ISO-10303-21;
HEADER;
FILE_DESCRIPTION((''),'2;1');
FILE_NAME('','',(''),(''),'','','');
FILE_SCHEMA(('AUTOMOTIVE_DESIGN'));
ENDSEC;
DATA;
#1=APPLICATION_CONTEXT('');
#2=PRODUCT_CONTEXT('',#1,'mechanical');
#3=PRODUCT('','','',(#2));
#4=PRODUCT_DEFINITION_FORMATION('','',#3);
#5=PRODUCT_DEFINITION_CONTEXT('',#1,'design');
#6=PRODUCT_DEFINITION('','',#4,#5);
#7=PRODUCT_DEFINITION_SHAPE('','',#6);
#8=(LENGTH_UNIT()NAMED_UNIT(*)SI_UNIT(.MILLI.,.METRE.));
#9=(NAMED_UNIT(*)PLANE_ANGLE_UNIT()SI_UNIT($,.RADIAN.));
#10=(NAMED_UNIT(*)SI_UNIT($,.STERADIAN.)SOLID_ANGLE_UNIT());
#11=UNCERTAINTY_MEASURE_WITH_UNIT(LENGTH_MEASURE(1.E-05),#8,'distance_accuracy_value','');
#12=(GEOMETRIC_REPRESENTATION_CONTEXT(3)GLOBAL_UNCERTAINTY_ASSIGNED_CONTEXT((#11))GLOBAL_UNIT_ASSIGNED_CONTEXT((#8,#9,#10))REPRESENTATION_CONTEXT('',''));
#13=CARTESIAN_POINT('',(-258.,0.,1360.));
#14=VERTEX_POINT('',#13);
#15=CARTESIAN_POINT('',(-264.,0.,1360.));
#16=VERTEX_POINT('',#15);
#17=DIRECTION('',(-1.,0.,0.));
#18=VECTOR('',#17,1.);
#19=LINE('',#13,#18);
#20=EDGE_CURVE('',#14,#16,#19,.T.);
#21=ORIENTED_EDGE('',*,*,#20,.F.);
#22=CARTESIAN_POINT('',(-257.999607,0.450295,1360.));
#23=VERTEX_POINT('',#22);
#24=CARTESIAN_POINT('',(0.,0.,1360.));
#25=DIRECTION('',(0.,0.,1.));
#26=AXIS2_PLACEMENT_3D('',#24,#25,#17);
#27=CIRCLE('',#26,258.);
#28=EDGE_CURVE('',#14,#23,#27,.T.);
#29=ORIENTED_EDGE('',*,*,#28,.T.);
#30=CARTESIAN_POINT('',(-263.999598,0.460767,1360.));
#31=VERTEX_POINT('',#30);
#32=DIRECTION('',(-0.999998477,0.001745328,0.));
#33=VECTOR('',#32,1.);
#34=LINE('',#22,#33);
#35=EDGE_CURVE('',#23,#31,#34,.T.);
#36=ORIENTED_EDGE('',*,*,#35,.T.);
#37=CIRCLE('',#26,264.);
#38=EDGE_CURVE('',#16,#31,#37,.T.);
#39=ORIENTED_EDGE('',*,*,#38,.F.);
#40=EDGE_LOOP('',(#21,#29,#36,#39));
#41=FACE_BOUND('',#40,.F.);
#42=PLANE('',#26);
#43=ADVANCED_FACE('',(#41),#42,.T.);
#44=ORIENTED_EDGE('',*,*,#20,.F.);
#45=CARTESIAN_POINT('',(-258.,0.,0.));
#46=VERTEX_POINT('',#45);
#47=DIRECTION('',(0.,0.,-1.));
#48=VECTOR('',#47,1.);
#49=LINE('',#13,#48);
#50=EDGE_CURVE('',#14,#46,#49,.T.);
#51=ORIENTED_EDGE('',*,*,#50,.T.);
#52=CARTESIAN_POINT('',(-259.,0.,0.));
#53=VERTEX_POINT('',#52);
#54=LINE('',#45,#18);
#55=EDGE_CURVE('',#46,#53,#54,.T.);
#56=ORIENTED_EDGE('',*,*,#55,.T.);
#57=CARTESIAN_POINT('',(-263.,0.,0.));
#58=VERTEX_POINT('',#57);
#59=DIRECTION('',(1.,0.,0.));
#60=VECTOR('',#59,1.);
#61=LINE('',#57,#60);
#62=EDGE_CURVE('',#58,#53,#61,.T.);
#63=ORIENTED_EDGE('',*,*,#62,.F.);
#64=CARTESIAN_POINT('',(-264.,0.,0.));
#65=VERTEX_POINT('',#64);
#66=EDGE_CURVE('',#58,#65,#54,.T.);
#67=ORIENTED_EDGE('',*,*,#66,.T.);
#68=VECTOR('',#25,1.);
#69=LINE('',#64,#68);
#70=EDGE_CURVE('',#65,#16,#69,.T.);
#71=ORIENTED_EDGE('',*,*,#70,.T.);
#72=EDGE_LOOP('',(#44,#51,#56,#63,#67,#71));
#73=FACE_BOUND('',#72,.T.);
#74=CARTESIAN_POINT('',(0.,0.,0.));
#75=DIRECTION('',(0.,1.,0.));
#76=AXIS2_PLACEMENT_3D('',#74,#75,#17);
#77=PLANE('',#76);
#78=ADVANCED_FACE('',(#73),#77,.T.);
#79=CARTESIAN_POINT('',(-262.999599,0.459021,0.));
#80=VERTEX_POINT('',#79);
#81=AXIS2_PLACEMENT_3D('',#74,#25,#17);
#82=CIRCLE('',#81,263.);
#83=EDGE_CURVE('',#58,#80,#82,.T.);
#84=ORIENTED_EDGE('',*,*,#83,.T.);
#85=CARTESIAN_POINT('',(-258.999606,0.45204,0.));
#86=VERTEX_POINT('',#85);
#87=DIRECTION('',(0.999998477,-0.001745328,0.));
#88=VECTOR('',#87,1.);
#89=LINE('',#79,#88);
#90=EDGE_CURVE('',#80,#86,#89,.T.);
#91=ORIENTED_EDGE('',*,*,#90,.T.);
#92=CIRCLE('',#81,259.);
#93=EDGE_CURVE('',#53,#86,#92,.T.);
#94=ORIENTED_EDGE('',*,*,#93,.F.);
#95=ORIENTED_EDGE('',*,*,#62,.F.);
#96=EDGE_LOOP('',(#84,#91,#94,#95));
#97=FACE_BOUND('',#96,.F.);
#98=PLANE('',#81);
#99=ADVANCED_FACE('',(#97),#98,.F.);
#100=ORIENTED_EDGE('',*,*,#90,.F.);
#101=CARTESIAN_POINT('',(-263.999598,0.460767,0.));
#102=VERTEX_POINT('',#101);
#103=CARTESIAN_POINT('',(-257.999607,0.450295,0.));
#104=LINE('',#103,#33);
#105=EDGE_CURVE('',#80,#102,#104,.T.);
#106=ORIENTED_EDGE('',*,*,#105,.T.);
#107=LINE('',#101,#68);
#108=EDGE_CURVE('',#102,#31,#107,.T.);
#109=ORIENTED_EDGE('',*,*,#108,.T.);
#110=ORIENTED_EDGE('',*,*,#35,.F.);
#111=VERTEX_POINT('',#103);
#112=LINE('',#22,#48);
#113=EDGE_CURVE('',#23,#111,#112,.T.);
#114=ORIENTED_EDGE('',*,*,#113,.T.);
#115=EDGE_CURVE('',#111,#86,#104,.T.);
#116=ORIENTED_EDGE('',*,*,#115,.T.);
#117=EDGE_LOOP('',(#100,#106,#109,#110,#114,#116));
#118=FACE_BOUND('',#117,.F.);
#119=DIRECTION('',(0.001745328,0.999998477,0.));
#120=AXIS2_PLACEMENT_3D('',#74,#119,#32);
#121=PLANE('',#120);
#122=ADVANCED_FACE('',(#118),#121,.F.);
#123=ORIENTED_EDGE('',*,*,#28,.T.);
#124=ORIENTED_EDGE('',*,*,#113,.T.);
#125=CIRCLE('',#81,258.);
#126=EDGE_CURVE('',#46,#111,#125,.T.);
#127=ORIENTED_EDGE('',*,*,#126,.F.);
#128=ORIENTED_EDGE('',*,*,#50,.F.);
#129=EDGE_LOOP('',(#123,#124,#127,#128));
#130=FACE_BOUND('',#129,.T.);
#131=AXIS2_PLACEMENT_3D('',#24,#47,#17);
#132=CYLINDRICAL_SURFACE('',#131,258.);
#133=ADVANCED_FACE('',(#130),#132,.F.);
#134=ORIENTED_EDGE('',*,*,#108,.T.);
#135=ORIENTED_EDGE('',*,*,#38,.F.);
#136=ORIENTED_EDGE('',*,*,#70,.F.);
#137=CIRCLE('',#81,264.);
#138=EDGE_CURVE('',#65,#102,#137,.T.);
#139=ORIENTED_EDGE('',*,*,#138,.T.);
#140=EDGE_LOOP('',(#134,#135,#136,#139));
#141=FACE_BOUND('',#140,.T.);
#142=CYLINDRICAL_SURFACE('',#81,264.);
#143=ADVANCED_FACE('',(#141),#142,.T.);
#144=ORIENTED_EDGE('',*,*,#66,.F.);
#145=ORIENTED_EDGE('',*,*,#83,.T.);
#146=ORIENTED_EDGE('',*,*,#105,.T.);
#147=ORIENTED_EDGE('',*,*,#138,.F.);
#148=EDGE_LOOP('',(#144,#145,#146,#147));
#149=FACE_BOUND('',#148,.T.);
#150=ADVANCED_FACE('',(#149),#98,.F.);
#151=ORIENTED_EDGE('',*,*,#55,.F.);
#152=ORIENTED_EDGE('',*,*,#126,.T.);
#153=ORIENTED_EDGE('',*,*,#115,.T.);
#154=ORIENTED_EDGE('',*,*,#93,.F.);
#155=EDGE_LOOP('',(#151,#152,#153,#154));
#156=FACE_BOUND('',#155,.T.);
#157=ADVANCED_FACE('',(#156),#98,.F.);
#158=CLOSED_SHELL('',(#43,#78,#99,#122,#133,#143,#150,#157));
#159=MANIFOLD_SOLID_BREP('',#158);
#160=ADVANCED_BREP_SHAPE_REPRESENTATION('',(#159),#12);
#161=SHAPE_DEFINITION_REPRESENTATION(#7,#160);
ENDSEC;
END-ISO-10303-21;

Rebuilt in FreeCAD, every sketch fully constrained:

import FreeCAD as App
import Part
import Sketcher
from FreeCAD import Vector

doc = App.newDocument("Part")
body = doc.addObject("PartDesign::Body", "Body")

# Sketch on XZ plane
sketch1 = body.newObject("Sketcher::SketchObject", "Sketch")
sketch1.AttachmentSupport = (doc.getObject("XZ_Plane"), [""])
sketch1.MapMode = "FlatFace"
sketch1.addGeometry([
    Part.LineSegment(Vector(-264, 1360, 0), Vector(-258, 1360, 0)),
    Part.LineSegment(Vector(-258, 1360, 0), Vector(-258, 0, 0)),
    Part.LineSegment(Vector(-258, 0, 0), Vector(-264, 0, 0)),
    Part.LineSegment(Vector(-264, 0, 0), Vector(-264, 1360, 0)),
], False)
sketch1.addConstraint([
    Sketcher.Constraint("Coincident", 0, 2, 1, 1),
    Sketcher.Constraint("Coincident", 1, 2, 2, 1),
    Sketcher.Constraint("Coincident", 2, 2, 3, 1),
    Sketcher.Constraint("Coincident", 3, 2, 0, 1),
    Sketcher.Constraint("Horizontal", 0),
    Sketcher.Constraint("Vertical", 1),
    Sketcher.Constraint("Horizontal", 2),
    Sketcher.Constraint("Vertical", 3),
    Sketcher.Constraint("PointOnObject", 1, 2, -1),
    Sketcher.Constraint("DistanceX", 0, 1, 0, 2, 6.0),
    Sketcher.Constraint("DistanceY", 1, 2, 1, 1, 1360.0),
    Sketcher.Constraint("DistanceX", 0, 2, -1, 1, 258.0),
])
revolution = body.newObject("PartDesign::Revolution", "Revolution")
revolution.Profile = sketch1
revolution.ReferenceAxis = (sketch1, ["V_Axis"])
revolution.Angle = 359.9

doc.recompute()
